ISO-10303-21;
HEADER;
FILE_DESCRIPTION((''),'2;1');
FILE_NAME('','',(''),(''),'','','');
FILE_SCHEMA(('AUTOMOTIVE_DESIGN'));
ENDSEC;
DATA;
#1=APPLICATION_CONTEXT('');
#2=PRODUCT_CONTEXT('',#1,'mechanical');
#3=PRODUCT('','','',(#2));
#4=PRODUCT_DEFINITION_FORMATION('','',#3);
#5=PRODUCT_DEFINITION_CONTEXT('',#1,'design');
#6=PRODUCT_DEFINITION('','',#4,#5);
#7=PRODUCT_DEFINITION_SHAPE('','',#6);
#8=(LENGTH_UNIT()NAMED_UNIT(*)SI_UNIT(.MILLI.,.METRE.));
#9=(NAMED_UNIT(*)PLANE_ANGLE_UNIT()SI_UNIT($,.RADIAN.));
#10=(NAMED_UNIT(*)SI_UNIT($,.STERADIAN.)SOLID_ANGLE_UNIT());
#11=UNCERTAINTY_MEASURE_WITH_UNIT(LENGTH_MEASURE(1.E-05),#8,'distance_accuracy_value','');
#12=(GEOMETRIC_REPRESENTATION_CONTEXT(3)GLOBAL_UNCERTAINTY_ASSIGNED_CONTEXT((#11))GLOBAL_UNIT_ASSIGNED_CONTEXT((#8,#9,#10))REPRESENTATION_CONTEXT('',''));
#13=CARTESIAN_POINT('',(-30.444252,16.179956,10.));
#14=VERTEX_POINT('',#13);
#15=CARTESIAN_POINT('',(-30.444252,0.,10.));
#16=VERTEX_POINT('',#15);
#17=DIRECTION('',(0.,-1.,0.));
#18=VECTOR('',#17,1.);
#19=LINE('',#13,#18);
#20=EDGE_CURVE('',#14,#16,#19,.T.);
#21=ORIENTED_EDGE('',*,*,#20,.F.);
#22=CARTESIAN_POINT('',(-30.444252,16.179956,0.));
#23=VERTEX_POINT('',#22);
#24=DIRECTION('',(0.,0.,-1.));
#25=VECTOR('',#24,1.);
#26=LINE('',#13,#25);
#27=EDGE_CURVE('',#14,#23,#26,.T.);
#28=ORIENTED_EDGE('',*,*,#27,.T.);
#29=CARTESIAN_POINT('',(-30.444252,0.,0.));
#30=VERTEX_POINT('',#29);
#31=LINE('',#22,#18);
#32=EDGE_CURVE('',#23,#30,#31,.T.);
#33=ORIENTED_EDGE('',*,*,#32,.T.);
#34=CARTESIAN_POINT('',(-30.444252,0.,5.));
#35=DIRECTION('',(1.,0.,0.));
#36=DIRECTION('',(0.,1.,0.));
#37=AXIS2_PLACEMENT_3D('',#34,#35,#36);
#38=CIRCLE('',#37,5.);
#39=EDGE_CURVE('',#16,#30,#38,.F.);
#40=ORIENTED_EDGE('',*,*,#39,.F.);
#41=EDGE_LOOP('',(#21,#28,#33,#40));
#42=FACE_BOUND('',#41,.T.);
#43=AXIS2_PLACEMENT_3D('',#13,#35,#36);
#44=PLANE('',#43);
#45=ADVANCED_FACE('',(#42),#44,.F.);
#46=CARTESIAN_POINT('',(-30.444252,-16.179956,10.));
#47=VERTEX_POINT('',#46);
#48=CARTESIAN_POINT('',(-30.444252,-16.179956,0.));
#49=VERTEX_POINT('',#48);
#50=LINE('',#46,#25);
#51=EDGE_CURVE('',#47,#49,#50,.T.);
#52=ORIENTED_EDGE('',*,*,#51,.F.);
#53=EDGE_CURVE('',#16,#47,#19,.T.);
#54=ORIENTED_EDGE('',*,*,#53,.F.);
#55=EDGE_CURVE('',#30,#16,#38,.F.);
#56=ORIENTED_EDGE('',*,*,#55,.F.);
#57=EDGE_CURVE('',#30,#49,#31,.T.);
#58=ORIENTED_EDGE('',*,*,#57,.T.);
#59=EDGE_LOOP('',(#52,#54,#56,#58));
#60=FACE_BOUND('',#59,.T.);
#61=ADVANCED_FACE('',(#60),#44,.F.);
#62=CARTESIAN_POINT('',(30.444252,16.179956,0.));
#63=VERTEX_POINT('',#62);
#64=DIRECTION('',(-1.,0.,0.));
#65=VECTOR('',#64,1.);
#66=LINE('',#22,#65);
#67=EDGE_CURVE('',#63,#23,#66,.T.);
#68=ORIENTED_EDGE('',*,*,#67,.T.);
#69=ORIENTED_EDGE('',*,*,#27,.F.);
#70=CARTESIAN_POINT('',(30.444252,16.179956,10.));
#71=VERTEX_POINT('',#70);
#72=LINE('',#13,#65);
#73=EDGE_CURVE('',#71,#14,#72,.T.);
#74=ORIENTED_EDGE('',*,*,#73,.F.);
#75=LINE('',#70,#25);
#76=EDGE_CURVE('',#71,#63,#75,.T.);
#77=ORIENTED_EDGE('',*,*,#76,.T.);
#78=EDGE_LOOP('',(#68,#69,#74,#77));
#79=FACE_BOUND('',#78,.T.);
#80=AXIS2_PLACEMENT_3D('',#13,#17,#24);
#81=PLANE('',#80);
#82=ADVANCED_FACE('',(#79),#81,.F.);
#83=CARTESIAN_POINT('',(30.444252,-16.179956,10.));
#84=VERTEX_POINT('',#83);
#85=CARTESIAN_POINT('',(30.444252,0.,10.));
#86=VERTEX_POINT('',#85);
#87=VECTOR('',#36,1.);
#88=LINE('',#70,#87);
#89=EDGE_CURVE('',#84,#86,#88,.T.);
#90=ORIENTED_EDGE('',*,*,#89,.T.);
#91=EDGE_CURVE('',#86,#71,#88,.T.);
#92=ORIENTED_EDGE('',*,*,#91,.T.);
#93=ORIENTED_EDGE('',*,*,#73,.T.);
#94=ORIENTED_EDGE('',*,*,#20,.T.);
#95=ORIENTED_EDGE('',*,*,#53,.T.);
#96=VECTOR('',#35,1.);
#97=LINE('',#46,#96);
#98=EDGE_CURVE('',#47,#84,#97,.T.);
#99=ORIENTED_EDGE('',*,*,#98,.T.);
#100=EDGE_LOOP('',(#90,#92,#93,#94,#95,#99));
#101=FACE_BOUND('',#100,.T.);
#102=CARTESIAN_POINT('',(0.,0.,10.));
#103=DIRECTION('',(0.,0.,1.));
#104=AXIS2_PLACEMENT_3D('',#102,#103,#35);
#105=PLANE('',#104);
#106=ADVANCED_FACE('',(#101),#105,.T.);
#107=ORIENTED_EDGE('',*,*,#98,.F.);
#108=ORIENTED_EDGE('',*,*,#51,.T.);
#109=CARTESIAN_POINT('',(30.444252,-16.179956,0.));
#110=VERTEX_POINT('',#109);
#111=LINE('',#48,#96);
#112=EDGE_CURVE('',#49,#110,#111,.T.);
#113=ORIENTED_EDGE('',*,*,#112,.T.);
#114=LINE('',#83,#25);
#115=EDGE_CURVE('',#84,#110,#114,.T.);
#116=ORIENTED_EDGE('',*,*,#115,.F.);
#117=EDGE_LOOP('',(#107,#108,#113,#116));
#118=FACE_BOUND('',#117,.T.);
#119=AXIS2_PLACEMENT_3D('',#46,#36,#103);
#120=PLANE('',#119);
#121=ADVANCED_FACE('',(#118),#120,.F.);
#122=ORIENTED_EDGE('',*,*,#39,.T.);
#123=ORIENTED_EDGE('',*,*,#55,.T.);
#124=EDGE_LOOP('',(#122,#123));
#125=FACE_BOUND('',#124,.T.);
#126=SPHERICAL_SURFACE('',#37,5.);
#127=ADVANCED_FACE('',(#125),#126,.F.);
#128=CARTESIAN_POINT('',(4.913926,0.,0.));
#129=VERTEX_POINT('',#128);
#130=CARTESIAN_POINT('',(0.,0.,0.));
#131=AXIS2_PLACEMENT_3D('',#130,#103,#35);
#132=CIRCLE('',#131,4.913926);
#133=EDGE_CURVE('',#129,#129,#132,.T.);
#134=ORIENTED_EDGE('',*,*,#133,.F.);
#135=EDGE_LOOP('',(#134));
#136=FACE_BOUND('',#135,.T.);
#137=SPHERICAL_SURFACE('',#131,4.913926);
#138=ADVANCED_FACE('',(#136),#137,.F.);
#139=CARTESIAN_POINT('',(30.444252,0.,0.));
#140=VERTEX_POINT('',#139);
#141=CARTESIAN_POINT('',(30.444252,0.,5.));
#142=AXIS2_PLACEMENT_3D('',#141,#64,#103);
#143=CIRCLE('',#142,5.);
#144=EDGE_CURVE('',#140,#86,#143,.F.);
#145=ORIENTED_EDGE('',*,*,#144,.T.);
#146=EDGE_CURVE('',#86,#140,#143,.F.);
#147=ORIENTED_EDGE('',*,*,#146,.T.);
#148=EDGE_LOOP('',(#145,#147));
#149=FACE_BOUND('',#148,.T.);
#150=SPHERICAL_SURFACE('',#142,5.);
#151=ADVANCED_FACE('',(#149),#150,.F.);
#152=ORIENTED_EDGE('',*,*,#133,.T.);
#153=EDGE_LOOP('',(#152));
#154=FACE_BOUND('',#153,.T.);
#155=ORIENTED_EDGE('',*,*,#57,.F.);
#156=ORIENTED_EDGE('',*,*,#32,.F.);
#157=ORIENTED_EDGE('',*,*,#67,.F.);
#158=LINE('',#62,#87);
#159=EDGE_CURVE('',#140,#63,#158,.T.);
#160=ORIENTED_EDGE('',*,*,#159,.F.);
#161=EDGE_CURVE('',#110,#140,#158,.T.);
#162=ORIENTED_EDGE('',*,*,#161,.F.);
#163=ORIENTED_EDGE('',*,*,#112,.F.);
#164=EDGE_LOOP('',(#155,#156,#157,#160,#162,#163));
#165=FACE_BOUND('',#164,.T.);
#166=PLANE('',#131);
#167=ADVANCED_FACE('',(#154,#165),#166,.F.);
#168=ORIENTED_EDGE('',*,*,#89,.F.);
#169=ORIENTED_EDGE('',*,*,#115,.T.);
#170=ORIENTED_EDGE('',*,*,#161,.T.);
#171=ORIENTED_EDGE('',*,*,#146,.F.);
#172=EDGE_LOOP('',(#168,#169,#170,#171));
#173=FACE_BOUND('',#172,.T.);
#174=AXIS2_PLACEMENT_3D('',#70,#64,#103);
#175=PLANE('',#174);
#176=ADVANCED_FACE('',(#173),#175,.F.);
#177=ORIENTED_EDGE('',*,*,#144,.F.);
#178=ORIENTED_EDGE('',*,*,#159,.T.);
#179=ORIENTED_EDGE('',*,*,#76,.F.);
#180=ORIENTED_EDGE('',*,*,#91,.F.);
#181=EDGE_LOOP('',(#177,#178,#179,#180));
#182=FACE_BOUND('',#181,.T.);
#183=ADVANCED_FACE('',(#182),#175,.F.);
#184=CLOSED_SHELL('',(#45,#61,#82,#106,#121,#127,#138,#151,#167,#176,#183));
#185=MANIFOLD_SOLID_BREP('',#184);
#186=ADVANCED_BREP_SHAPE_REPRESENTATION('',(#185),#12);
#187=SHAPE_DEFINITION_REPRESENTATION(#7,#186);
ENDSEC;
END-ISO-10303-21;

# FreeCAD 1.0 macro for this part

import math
import FreeCAD as App
import Part
import Sketcher
from FreeCAD import Vector
Q = App.Units.Quantity


def add_polygon(sketch, points):
    """Adds a closed chain of lines whose ends are joined by coincident constraints."""
    first, n = sketch.GeometryCount, len(points)
    for a, b in zip(points, points[1:] + points[:1]):
        sketch.addGeometry(Part.LineSegment(App.Vector(*a, 0), App.Vector(*b, 0)), False)
    for i in range(n):
        sketch.addConstraint(Sketcher.Constraint("Coincident", first + i, 2, first + (i + 1) % n, 1))

doc = App.newDocument("Part")
body = doc.addObject("PartDesign::Body", "Body")

sketch1 = body.newObject("Sketcher::SketchObject", "Sketch")
sketch1.AttachmentSupport = (doc.getObject("XY_Plane"), [""])
sketch1.MapMode = "FlatFace"
add_polygon(sketch1, [(-30.444252, 16.179956), (-30.444252, -16.179956), (30.444252, -16.179956), (30.444252, 16.179956)])
sketch1.addConstraint([
    Sketcher.Constraint("Vertical", 0),
    Sketcher.Constraint("Horizontal", 1),
    Sketcher.Constraint("Vertical", 2),
    Sketcher.Constraint("Horizontal", 3),
    Sketcher.Constraint("Symmetric", 0, 2, 2, 2, -1, 1),
    Sketcher.Constraint("DistanceX", 1, 1, 1, 2, Q("60.888504 mm")),
    Sketcher.Constraint("DistanceY", 0, 2, 0, 1, Q("32.359912 mm")),
])
pad1 = body.newObject("PartDesign::Pad", "Pad")
pad1.Profile = sketch1
pad1.Length = 10

sketch2 = body.newObject("Sketcher::SketchObject", "Sketch001")
sketch2.AttachmentSupport = (doc.getObject("XZ_Plane"), [""])
sketch2.MapMode = "FlatFace"
sketch2.addGeometry([
    Part.LineSegment(Vector(-30.444252, 0, 0), Vector(-30.444252, 10, 0)),
    Part.ArcOfCircle(Part.Circle(Vector(-30.444252, 5, 0), Vector(0, 0, 1), 5), math.radians(-90), math.radians(90)),
], False)
sketch2.addGeometry(Part.LineSegment(Vector(-30.444252, 0, 0), Vector(-30.444252, 10, 0)), True)
sketch2.addConstraint([
    Sketcher.Constraint("Coincident", 0, 1, 1, 1),
    Sketcher.Constraint("Coincident", 1, 2, 0, 2),
    Sketcher.Constraint("Vertical", 0),
    Sketcher.Constraint("Vertical", 2),
    Sketcher.Constraint("Coincident", 2, 1, 0, 1),
    Sketcher.Constraint("PointOnObject", 0, 1, -1),
    Sketcher.Constraint("Vertical", 1, 3, 0, 1),
    Sketcher.Constraint("Equal", 0, 2),
    Sketcher.Constraint("Radius", 1, Q("5 mm")),
    Sketcher.Constraint("DistanceX", 1, 3, -1, 1, Q("30.444252 mm")),
])
groove = body.newObject("PartDesign::Groove", "Groove")
groove.Profile = sketch2
groove.ReferenceAxis = (sketch2, ["Axis0"])
groove.Angle = 360
doc.recompute()

mirrored = body.newObject("PartDesign::Mirrored", "Mirrored")
mirrored.Originals = [groove]
mirrored.MirrorPlane = (doc.getObject("YZ_Plane"), [""])
body.Tip = mirrored

sketch3 = body.newObject("Sketcher::SketchObject", "Sketch002")
sketch3.AttachmentSupport = (doc.getObject("XZ_Plane"), [""])
sketch3.MapMode = "FlatFace"
sketch3.addGeometry([
    Part.LineSegment(Vector(4.913926, 0, 0), Vector(-4.913926, 0, 0)),
    Part.ArcOfCircle(Part.Circle(Vector(0, 0, 0), Vector(0, 0, 1), 4.913926), math.radians(0), math.radians(180)),
], False)
sketch3.addConstraint([
    Sketcher.Constraint("Coincident", 0, 1, 1, 1),
    Sketcher.Constraint("Coincident", 1, 2, 0, 2),
    Sketcher.Constraint("Horizontal", 0),
    Sketcher.Constraint("Coincident", 1, 3, -1, 1),
    Sketcher.Constraint("PointOnObject", 0, 1, -1),
    Sketcher.Constraint("Radius", 1, Q("4.913926 mm")),
])
groove2 = body.newObject("PartDesign::Groove", "Groove001")
groove2.Profile = sketch3
groove2.ReferenceAxis = (sketch3, ["H_Axis"])
groove2.Angle = 360

doc.recompute()
